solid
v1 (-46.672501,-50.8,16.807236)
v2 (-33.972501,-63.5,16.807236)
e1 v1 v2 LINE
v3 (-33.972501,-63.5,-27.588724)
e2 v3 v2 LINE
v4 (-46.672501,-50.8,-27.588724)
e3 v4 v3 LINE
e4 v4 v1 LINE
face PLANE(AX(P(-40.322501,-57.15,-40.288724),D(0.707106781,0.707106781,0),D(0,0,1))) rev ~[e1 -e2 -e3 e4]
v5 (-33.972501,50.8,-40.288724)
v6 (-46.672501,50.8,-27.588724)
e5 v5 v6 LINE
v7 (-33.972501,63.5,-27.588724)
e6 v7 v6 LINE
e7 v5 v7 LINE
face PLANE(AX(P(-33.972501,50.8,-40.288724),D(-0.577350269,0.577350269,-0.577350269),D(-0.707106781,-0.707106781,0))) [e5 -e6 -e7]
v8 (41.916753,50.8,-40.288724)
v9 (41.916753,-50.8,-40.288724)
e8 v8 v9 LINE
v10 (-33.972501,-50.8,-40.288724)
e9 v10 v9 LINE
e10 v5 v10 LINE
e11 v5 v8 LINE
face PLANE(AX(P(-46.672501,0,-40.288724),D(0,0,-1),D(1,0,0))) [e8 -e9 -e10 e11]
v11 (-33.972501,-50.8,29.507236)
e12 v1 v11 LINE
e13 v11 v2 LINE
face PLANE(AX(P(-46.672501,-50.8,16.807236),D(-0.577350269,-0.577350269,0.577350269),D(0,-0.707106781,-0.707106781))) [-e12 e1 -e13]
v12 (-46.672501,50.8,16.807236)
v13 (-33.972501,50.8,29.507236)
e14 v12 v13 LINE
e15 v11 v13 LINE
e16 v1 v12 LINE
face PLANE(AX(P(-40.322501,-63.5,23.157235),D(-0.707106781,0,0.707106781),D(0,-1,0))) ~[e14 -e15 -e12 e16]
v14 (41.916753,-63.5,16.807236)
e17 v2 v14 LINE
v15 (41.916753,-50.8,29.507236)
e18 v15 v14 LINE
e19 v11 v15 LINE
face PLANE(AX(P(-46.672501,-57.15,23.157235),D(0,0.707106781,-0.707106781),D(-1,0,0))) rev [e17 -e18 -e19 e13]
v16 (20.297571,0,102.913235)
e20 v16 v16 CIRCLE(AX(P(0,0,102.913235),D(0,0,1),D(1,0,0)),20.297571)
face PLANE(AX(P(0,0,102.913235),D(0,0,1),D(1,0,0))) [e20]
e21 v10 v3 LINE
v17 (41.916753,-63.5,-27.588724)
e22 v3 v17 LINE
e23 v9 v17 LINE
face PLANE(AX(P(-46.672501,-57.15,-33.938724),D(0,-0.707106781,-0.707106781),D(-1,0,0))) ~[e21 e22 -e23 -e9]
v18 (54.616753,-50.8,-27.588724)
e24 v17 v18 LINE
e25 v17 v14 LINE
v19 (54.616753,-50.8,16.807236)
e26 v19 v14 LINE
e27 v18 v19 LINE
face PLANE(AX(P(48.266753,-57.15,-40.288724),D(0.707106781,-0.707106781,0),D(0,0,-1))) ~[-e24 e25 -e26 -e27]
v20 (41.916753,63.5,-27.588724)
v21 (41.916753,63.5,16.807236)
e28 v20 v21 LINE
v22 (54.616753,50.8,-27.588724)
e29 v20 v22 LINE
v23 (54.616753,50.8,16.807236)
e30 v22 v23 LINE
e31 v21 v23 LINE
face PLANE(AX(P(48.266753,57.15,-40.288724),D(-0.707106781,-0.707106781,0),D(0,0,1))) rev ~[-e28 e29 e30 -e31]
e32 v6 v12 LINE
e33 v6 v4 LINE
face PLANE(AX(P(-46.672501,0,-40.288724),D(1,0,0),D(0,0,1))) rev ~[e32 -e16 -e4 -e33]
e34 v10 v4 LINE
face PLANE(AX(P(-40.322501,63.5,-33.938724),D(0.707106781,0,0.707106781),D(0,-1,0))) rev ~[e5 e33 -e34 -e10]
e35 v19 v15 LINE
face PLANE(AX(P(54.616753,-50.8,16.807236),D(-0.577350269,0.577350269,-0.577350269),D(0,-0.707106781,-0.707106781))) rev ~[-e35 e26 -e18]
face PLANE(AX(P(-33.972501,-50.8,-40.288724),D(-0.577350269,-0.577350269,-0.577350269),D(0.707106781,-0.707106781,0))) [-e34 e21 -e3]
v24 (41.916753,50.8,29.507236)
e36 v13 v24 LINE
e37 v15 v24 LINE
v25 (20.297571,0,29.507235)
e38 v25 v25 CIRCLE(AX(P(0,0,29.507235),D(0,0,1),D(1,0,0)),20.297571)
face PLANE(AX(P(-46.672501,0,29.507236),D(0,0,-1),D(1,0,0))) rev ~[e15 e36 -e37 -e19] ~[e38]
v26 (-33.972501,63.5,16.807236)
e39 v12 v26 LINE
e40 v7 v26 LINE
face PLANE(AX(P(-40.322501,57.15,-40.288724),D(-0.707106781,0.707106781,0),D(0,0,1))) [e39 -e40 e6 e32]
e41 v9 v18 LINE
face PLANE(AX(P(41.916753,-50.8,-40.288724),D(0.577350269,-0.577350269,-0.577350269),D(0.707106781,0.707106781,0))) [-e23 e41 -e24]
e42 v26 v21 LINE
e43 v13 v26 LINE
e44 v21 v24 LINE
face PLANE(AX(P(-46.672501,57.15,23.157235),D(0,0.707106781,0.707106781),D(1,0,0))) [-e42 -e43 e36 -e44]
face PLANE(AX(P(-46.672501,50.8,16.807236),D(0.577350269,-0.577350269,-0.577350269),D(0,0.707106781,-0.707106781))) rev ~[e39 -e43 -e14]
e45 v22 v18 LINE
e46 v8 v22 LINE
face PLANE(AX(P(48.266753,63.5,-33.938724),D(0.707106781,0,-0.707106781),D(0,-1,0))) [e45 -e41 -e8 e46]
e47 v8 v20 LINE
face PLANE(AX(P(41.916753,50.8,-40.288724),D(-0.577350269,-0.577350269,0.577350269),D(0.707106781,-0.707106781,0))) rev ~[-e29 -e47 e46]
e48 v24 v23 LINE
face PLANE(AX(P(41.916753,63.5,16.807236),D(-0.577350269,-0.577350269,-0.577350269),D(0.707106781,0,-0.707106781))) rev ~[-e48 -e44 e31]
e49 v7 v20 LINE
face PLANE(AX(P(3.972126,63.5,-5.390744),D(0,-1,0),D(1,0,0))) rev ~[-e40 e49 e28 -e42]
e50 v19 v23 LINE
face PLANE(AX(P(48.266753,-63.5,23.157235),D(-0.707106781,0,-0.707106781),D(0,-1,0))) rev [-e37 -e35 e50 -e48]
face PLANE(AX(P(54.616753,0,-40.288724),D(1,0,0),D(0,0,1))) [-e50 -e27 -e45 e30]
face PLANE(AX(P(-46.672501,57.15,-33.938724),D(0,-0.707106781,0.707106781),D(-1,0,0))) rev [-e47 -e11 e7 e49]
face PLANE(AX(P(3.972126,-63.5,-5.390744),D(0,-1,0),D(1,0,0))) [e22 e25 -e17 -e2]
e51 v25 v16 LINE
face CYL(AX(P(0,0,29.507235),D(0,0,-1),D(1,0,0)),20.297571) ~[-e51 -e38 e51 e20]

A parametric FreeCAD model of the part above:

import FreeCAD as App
import Part
import Sketcher

V = App.Vector
Q = App.Units.Quantity

doc = App.newDocument("Part")
body = doc.addObject("PartDesign::Body", "Body")

# Sketch on XZ plane
sketch1 = body.newObject("Sketcher::SketchObject", "Sketch")
sketch1.AttachmentSupport = (doc.getObject("XZ_Plane"), [""])
sketch1.MapMode = "FlatFace"
sketch1.addGeometry(Part.LineSegment(V(-47, 30, 0), V(-47, -40, 0)), False)
sketch1.addGeometry(Part.LineSegment(V(-47, -40, 0), V(55, -40, 0)), False)
sketch1.addGeometry(Part.LineSegment(V(55, -40, 0), V(55, 30, 0)), False)
sketch1.addGeometry(Part.LineSegment(V(55, 30, 0), V(-47, 30, 0)), False)
sketch1.addConstraint(Sketcher.Constraint("Coincident", 0, 2, 1, 1))
sketch1.addConstraint(Sketcher.Constraint("Coincident", 1, 2, 2, 1))
sketch1.addConstraint(Sketcher.Constraint("Coincident", 2, 2, 3, 1))
sketch1.addConstraint(Sketcher.Constraint("Coincident", 3, 2, 0, 1))
sketch1.addConstraint(Sketcher.Constraint("Vertical", 0))
sketch1.addConstraint(Sketcher.Constraint("Horizontal", 1))
sketch1.addConstraint(Sketcher.Constraint("Vertical", 2))
sketch1.addConstraint(Sketcher.Constraint("Horizontal", 3))
sketch1.addConstraint(Sketcher.Constraint("DistanceX", 0, 2, -1, 1, Q("1.8375 in")))
sketch1.addConstraint(Sketcher.Constraint("DistanceY", 0, 2, 0, 1, 69.795959))
sketch1.addConstraint(Sketcher.Constraint("DistanceX", 1, 1, 1, 2, 101.289254))
sketch1.addConstraint(Sketcher.Constraint("DistanceY", 0, 2, -1, 1, 40.288724))
pad1 = body.newObject("PartDesign::Pad", "Pad")
pad1.Profile = sketch1
pad1.Length = Q("5 in")
pad1.Midplane = True
doc.recompute()

chamfer = body.newObject("PartDesign::Chamfer", "Chamfer")
chamfer.Base = (pad1, ["Edge1"])
chamfer.UseAllEdges = True
chamfer.Size = Q("0.5 in")

# Sketch on XY plane
sketch2 = body.newObject("Sketcher::SketchObject", "Sketch001")
sketch2.AttachmentSupport = (doc.getObject("XY_Plane"), [""])
sketch2.MapMode = "FlatFace"
sketch2.AttachmentOffset = App.Placement(V(0, 0, 29.507235), App.Rotation())
sketch2.addGeometry(Part.Circle(V(0, 0, 0), V(0, 0, 1), 20), False)
sketch2.addConstraint(Sketcher.Constraint("Coincident", 0, 3, -1, 1))
sketch2.addConstraint(Sketcher.Constraint("Diameter", 0, 40.595142))
pad2 = body.newObject("PartDesign::Pad", "Pad001")
pad2.Profile = sketch2
pad2.Length = Q("2.89 in")

doc.recompute()
